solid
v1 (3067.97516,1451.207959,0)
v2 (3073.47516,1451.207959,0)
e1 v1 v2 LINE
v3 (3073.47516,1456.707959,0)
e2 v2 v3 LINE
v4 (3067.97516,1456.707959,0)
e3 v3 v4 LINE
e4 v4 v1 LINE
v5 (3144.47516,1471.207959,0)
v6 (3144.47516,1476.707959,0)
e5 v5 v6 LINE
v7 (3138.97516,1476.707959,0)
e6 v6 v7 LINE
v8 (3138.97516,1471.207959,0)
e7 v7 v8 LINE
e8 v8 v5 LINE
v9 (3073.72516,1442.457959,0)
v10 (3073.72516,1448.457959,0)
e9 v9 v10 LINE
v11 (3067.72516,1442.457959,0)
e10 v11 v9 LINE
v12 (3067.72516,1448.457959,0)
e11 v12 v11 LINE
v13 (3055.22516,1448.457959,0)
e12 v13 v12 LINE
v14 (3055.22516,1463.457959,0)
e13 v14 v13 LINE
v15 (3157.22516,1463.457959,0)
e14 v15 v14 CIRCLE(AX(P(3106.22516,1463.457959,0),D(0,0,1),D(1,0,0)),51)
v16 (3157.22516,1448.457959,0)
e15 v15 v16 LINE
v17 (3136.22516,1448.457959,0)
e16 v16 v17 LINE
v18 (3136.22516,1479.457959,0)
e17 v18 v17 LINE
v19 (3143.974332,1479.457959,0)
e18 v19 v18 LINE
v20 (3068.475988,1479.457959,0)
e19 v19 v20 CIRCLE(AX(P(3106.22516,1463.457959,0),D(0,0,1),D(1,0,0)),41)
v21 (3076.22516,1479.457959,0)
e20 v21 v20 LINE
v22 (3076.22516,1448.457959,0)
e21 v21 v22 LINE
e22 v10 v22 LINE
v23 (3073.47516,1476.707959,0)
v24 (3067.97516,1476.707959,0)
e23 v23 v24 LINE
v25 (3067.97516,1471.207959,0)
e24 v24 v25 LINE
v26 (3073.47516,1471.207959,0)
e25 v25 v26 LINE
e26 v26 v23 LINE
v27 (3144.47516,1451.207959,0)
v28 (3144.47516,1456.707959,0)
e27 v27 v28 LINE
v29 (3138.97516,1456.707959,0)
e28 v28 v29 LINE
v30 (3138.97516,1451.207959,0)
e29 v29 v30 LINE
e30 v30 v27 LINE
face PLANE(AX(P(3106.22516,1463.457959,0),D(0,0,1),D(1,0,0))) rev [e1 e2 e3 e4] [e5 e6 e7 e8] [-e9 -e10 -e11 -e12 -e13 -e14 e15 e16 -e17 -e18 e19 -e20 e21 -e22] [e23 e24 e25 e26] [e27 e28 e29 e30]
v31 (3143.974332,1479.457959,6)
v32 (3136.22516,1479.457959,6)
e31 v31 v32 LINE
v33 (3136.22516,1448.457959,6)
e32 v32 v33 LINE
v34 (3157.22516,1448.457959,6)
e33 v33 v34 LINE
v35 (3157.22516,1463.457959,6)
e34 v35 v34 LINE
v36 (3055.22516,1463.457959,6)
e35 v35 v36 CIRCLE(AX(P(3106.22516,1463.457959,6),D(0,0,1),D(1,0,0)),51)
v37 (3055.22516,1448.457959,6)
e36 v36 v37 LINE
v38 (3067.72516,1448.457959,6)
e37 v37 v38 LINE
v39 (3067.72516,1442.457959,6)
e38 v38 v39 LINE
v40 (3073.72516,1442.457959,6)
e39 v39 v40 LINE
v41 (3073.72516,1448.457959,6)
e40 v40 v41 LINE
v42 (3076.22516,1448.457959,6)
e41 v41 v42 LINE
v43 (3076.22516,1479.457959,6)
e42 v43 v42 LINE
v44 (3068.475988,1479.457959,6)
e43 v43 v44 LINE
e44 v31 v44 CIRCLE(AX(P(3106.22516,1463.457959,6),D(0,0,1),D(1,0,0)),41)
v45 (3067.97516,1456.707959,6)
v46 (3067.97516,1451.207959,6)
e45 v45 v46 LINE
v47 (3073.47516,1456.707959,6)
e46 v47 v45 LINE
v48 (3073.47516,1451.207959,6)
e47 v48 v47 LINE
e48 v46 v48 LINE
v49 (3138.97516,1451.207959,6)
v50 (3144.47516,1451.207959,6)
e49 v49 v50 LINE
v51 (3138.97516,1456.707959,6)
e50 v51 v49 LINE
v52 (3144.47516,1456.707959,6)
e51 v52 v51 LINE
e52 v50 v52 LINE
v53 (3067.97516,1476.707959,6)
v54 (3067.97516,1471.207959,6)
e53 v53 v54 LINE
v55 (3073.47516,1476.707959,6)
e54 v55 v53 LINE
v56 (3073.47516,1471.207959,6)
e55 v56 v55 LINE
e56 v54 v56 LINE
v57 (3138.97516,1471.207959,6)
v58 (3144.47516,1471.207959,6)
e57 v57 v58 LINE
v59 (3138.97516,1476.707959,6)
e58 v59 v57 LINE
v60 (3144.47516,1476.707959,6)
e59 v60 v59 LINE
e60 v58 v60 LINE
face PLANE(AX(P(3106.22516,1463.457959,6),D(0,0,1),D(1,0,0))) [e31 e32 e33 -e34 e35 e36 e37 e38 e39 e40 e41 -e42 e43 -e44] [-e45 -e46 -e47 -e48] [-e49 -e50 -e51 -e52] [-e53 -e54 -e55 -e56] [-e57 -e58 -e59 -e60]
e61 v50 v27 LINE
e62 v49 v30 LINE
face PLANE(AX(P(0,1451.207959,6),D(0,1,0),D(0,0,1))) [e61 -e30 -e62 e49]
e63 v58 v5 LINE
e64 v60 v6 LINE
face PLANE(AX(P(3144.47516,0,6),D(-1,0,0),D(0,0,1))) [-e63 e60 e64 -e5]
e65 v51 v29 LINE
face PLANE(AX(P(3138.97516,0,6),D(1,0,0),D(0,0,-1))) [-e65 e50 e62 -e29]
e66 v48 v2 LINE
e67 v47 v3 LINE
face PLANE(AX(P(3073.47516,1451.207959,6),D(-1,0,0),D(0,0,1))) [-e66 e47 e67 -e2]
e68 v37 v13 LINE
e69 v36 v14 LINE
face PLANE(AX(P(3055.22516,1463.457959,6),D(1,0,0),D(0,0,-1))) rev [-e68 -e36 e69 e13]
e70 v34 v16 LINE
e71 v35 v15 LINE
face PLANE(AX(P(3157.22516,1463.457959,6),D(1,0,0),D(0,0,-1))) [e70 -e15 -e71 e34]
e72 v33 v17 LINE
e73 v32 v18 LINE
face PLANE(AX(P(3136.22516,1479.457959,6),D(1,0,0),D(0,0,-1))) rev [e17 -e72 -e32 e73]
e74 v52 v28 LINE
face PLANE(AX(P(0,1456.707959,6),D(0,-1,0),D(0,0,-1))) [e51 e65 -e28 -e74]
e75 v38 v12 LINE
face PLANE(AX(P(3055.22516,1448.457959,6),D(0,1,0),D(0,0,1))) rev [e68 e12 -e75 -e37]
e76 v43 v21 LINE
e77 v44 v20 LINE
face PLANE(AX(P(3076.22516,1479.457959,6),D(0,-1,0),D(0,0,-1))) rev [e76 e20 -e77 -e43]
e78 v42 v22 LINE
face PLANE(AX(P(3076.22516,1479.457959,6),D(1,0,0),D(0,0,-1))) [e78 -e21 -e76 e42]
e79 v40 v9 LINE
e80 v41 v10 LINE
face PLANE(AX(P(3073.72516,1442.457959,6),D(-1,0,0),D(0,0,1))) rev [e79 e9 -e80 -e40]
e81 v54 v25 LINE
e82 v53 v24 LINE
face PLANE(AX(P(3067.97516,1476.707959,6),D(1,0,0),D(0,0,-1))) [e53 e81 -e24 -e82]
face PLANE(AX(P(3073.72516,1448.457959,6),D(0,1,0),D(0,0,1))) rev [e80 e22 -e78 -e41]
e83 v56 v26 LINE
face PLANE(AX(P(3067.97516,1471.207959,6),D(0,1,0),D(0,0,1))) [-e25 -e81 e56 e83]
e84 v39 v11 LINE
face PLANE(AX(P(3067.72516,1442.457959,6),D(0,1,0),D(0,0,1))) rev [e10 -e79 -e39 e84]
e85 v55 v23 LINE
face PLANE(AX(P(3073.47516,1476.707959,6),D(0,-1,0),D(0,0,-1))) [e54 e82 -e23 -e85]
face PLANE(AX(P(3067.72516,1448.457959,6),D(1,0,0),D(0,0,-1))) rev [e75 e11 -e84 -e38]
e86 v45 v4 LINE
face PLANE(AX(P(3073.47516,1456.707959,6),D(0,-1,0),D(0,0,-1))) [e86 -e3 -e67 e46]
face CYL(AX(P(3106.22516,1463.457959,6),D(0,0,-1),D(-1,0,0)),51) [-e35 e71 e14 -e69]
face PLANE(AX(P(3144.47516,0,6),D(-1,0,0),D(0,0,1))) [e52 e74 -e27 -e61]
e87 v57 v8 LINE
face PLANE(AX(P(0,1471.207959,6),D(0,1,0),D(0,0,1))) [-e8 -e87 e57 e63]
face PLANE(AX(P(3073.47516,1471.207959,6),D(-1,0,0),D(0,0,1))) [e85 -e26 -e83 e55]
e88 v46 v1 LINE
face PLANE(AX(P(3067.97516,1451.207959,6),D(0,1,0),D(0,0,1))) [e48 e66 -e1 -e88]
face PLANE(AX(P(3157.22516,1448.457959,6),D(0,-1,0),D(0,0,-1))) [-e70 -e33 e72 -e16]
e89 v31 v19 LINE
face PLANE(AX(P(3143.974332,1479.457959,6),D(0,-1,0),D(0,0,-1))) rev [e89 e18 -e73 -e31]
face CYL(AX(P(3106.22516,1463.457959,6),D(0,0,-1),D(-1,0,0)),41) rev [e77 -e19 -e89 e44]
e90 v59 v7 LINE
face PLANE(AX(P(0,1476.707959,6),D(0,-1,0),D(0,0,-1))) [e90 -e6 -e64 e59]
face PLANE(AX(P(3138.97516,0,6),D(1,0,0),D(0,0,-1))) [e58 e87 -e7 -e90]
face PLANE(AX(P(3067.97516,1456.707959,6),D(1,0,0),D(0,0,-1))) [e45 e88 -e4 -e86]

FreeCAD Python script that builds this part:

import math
import FreeCAD as App
import Part
import Sketcher
from FreeCAD import Vector

doc = App.newDocument("Part")
body = doc.addObject("PartDesign::Body", "Body")

# Sketch on XY plane
sketch1 = body.newObject("Sketcher::SketchObject", "Sketch")
sketch1.AttachmentSupport = (doc.getObject("XY_Plane"), [""])
sketch1.MapMode = "FlatFace"
sketch1.addGeometry(Part.LineSegment(Vector(3055.22516, 1463.457959, 0), Vector(3055.22516, 1448.457959, 0)), False)
sketch1.addGeometry(Part.LineSegment(Vector(3055.22516, 1448.457959, 0), Vector(3067.72516, 1448.457959, 0)), False)
sketch1.addGeometry(Part.LineSegment(Vector(3067.72516, 1448.457959, 0), Vector(3067.72516, 1442.457959, 0)), False)
sketch1.addGeometry(Part.LineSegment(Vector(3067.72516, 1442.457959, 0), Vector(3073.72516, 1442.457959, 0)), False)
sketch1.addGeometry(Part.LineSegment(Vector(3073.72516, 1442.457959, 0), Vector(3073.72516, 1448.457959, 0)), False)
sketch1.addGeometry(Part.LineSegment(Vector(3073.72516, 1448.457959, 0), Vector(3076.22516, 1448.457959, 0)), False)
sketch1.addGeometry(Part.LineSegment(Vector(3076.22516, 1448.457959, 0), Vector(3076.22516, 1479.457959, 0)), False)
sketch1.addGeometry(Part.LineSegment(Vector(3076.22516, 1479.457959, 0), Vector(3068.475988, 1479.457959, 0)), False)
sketch1.addGeometry(Part.ArcOfCircle(Part.Circle(Vector(3106.22516, 1463.457959, 0), Vector(0, 0, 1), 41), math.radians(22.969677), math.radians(157.030323)), False)
sketch1.addGeometry(Part.LineSegment(Vector(3143.974332, 1479.457959, 0), Vector(3136.22516, 1479.457959, 0)), False)
sketch1.addGeometry(Part.LineSegment(Vector(3136.22516, 1479.457959, 0), Vector(3136.22516, 1448.457959, 0)), False)
sketch1.addGeometry(Part.LineSegment(Vector(3136.22516, 1448.457959, 0), Vector(3157.22516, 1448.457959, 0)), False)
sketch1.addGeometry(Part.LineSegment(Vector(3157.22516, 1448.457959, 0), Vector(3157.22516, 1463.457959, 0)), False)
sketch1.addGeometry(Part.ArcOfCircle(Part.Circle(Vector(3106.22516, 1463.457959, 0), Vector(0, 0, 1), 51), math.radians(0), math.radians(180)), False)
sketch1.addGeometry(Part.LineSegment(Vector(3073.47516, 1451.207959, 0), Vector(3067.97516, 1451.207959, 0)), False)
sketch1.addGeometry(Part.LineSegment(Vector(3067.97516, 1451.207959, 0), Vector(3067.97516, 1456.707959, 0)), False)
sketch1.addGeometry(Part.LineSegment(Vector(3067.97516, 1456.707959, 0), Vector(3073.47516, 1456.707959, 0)), False)
sketch1.addGeometry(Part.LineSegment(Vector(3073.47516, 1456.707959, 0), Vector(3073.47516, 1451.207959, 0)), False)
sketch1.addGeometry(Part.LineSegment(Vector(3144.47516, 1451.207959, 0), Vector(3138.97516, 1451.207959, 0)), False)
sketch1.addGeometry(Part.LineSegment(Vector(3138.97516, 1451.207959, 0), Vector(3138.97516, 1456.707959, 0)), False)
sketch1.addGeometry(Part.LineSegment(Vector(3138.97516, 1456.707959, 0), Vector(3144.47516, 1456.707959, 0)), False)
sketch1.addGeometry(Part.LineSegment(Vector(3144.47516, 1456.707959, 0), Vector(3144.47516, 1451.207959, 0)), False)
sketch1.addGeometry(Part.LineSegment(Vector(3073.47516, 1471.207959, 0), Vector(3067.97516, 1471.207959, 0)), False)
sketch1.addGeometry(Part.LineSegment(Vector(3067.97516, 1471.207959, 0), Vector(3067.97516, 1476.707959, 0)), False)
sketch1.addGeometry(Part.LineSegment(Vector(3067.97516, 1476.707959, 0), Vector(3073.47516, 1476.707959, 0)), False)
sketch1.addGeometry(Part.LineSegment(Vector(3073.47516, 1476.707959, 0), Vector(3073.47516, 1471.207959, 0)), False)
sketch1.addGeometry(Part.LineSegment(Vector(3144.47516, 1471.207959, 0), Vector(3138.97516, 1471.207959, 0)), False)
sketch1.addGeometry(Part.LineSegment(Vector(3138.97516, 1471.207959, 0), Vector(3138.97516, 1476.707959, 0)), False)
sketch1.addGeometry(Part.LineSegment(Vector(3138.97516, 1476.707959, 0), Vector(3144.47516, 1476.707959, 0)), False)
sketch1.addGeometry(Part.LineSegment(Vector(3144.47516, 1476.707959, 0), Vector(3144.47516, 1471.207959, 0)), False)
sketch1.addConstraint(Sketcher.Constraint("Coincident", 0, 2, 1, 1))
sketch1.addConstraint(Sketcher.Constraint("Coincident", 1, 2, 2, 1))
sketch1.addConstraint(Sketcher.Constraint("Coincident", 2, 2, 3, 1))
sketch1.addConstraint(Sketcher.Constraint("Coincident", 3, 2, 4, 1))
sketch1.addConstraint(Sketcher.Constraint("Coincident", 4, 2, 5, 1))
sketch1.addConstraint(Sketcher.Constraint("Coincident", 5, 2, 6, 1))
sketch1.addConstraint(Sketcher.Constraint("Coincident", 6, 2, 7, 1))
sketch1.addConstraint(Sketcher.Constraint("Coincident", 7, 2, 8, 2))
sketch1.addConstraint(Sketcher.Constraint("Coincident", 8, 1, 9, 1))
sketch1.addConstraint(Sketcher.Constraint("Coincident", 9, 2, 10, 1))
sketch1.addConstraint(Sketcher.Constraint("Coincident", 10, 2, 11, 1))
sketch1.addConstraint(Sketcher.Constraint("Coincident", 11, 2, 12, 1))
sketch1.addConstraint(Sketcher.Constraint("Tangent", 12, 2, 13, 1))
sketch1.addConstraint(Sketcher.Constraint("Tangent", 13, 2, 0, 1))
sketch1.addConstraint(Sketcher.Constraint("Coincident", 14, 2, 15, 1))
sketch1.addConstraint(Sketcher.Constraint("Coincident", 15, 2, 16, 1))
sketch1.addConstraint(Sketcher.Constraint("Coincident", 16, 2, 17, 1))
sketch1.addConstraint(Sketcher.Constraint("Coincident", 17, 2, 14, 1))
sketch1.addConstraint(Sketcher.Constraint("Coincident", 18, 2, 19, 1))
sketch1.addConstraint(Sketcher.Constraint("Coincident", 19, 2, 20, 1))
sketch1.addConstraint(Sketcher.Constraint("Coincident", 20, 2, 21, 1))
sketch1.addConstraint(Sketcher.Constraint("Coincident", 21, 2, 18, 1))
sketch1.addConstraint(Sketcher.Constraint("Coincident", 22, 2, 23, 1))
sketch1.addConstraint(Sketcher.Constraint("Coincident", 23, 2, 24, 1))
sketch1.addConstraint(Sketcher.Constraint("Coincident", 24, 2, 25, 1))
sketch1.addConstraint(Sketcher.Constraint("Coincident", 25, 2, 22, 1))
sketch1.addConstraint(Sketcher.Constraint("Coincident", 26, 2, 27, 1))
sketch1.addConstraint(Sketcher.Constraint("Coincident", 27, 2, 28, 1))
sketch1.addConstraint(Sketcher.Constraint("Coincident", 28, 2, 29, 1))
sketch1.addConstraint(Sketcher.Constraint("Coincident", 29, 2, 26, 1))
sketch1.addConstraint(Sketcher.Constraint("Vertical", 0))
sketch1.addConstraint(Sketcher.Constraint("Horizontal", 1))
sketch1.addConstraint(Sketcher.Constraint("Vertical", 2))
sketch1.addConstraint(Sketcher.Constraint("Horizontal", 3))
sketch1.addConstraint(Sketcher.Constraint("Vertical", 4))
sketch1.addConstraint(Sketcher.Constraint("Horizontal", 5))
sketch1.addConstraint(Sketcher.Constraint("Vertical", 6))
sketch1.addConstraint(Sketcher.Constraint("Horizontal", 7))
sketch1.addConstraint(Sketcher.Constraint("Horizontal", 9))
sketch1.addConstraint(Sketcher.Constraint("Vertical", 10))
sketch1.addConstraint(Sketcher.Constraint("Horizontal", 11))
sketch1.addConstraint(Sketcher.Constraint("Vertical", 12))
sketch1.addConstraint(Sketcher.Constraint("Horizontal", 14))
sketch1.addConstraint(Sketcher.Constraint("Vertical", 15))
sketch1.addConstraint(Sketcher.Constraint("Horizontal", 16))
sketch1.addConstraint(Sketcher.Constraint("Vertical", 17))
sketch1.addConstraint(Sketcher.Constraint("Horizontal", 18))
sketch1.addConstraint(Sketcher.Constraint("Vertical", 19))
sketch1.addConstraint(Sketcher.Constraint("Horizontal", 20))
sketch1.addConstraint(Sketcher.Constraint("Vertical", 21))
sketch1.addConstraint(Sketcher.Constraint("Horizontal", 22))
sketch1.addConstraint(Sketcher.Constraint("Vertical", 23))
sketch1.addConstraint(Sketcher.Constraint("Horizontal", 24))
sketch1.addConstraint(Sketcher.Constraint("Vertical", 25))
sketch1.addConstraint(Sketcher.Constraint("Horizontal", 26))
sketch1.addConstraint(Sketcher.Constraint("Vertical", 27))
sketch1.addConstraint(Sketcher.Constraint("Horizontal", 28))
sketch1.addConstraint(Sketcher.Constraint("Vertical", 29))
sketch1.addConstraint(Sketcher.Constraint("Coincident", 13, 3, 8, 3))
sketch1.addConstraint(Sketcher.Constraint("Horizontal", 1, 2, 4, 2))
sketch1.addConstraint(Sketcher.Constraint("Horizontal", 7, 2, 8, 1))
sketch1.addConstraint(Sketcher.Constraint("Horizontal", 5, 2, 10, 2))
sketch1.addConstraint(Sketcher.Constraint("Horizontal", 17, 2, 18, 2))
sketch1.addConstraint(Sketcher.Constraint("Horizontal", 16, 2, 19, 2))
sketch1.addConstraint(Sketcher.Constraint("Horizontal", 25, 2, 26, 2))
sketch1.addConstraint(Sketcher.Constraint("Horizontal", 24, 2, 27, 2))
sketch1.addConstraint(Sketcher.Constraint("Vertical", 15, 2, 22, 2))
sketch1.addConstraint(Sketcher.Constraint("Vertical", 17, 2, 24, 2))
sketch1.addConstraint(Sketcher.Constraint("Vertical", 19, 2, 26, 2))
sketch1.addConstraint(Sketcher.Constraint("Vertical", 21, 2, 28, 2))
sketch1.addConstraint(Sketcher.Constraint("Equal", 7, 9))
sketch1.addConstraint(Sketcher.Constraint("Equal", 16, 18))
sketch1.addConstraint(Sketcher.Constraint("Equal", 3, 2))
sketch1.addConstraint(Sketcher.Constraint("Equal", 28, 15))
sketch1.addConstraint(Sketcher.Constraint("Equal", 21, 23))
sketch1.addConstraint(Sketcher.Constraint("Radius", 8, 41.0))
sketch1.addConstraint(Sketcher.Constraint("Radius", 13, 51.0))
sketch1.addConstraint(Sketcher.Constraint("DistanceX", 3, 1, 3, 2, 6.0))
sketch1.addConstraint(Sketcher.Constraint("DistanceX", 11, 1, 11, 2, 21.0))
sketch1.addConstraint(Sketcher.Constraint("DistanceY", 0, 2, 0, 1, 15.0))
sketch1.addConstraint(Sketcher.Constraint("DistanceY", 6, 1, 6, 2, 31.0))
sketch1.addConstraint(Sketcher.Constraint("DistanceX", 1, 1, 1, 2, 12.5))
sketch1.addConstraint(Sketcher.Constraint("DistanceX", 14, 2, 14, 1, 5.5))
sketch1.addConstraint(Sketcher.Constraint("DistanceY", 15, 2, 23, 2, 20.0))
sketch1.addConstraint(Sketcher.Constraint("DistanceX", 1, 2, 14, 2, 0.25))
sketch1.addConstraint(Sketcher.Constraint("DistanceY", 1, 2, 14, 2, 2.75))
sketch1.addConstraint(Sketcher.Constraint("DistanceX", 10, 2, 18, 2, 2.75))
sketch1.addConstraint(Sketcher.Constraint("DistanceX", -1, 1, 8, 3, 3106.22516))
sketch1.addConstraint(Sketcher.Constraint("DistanceY", -1, 1, 8, 3, 1463.457959))
pad1 = body.newObject("PartDesign::Pad", "Pad")
pad1.Profile = sketch1
pad1.Length = 6

doc.recompute()
